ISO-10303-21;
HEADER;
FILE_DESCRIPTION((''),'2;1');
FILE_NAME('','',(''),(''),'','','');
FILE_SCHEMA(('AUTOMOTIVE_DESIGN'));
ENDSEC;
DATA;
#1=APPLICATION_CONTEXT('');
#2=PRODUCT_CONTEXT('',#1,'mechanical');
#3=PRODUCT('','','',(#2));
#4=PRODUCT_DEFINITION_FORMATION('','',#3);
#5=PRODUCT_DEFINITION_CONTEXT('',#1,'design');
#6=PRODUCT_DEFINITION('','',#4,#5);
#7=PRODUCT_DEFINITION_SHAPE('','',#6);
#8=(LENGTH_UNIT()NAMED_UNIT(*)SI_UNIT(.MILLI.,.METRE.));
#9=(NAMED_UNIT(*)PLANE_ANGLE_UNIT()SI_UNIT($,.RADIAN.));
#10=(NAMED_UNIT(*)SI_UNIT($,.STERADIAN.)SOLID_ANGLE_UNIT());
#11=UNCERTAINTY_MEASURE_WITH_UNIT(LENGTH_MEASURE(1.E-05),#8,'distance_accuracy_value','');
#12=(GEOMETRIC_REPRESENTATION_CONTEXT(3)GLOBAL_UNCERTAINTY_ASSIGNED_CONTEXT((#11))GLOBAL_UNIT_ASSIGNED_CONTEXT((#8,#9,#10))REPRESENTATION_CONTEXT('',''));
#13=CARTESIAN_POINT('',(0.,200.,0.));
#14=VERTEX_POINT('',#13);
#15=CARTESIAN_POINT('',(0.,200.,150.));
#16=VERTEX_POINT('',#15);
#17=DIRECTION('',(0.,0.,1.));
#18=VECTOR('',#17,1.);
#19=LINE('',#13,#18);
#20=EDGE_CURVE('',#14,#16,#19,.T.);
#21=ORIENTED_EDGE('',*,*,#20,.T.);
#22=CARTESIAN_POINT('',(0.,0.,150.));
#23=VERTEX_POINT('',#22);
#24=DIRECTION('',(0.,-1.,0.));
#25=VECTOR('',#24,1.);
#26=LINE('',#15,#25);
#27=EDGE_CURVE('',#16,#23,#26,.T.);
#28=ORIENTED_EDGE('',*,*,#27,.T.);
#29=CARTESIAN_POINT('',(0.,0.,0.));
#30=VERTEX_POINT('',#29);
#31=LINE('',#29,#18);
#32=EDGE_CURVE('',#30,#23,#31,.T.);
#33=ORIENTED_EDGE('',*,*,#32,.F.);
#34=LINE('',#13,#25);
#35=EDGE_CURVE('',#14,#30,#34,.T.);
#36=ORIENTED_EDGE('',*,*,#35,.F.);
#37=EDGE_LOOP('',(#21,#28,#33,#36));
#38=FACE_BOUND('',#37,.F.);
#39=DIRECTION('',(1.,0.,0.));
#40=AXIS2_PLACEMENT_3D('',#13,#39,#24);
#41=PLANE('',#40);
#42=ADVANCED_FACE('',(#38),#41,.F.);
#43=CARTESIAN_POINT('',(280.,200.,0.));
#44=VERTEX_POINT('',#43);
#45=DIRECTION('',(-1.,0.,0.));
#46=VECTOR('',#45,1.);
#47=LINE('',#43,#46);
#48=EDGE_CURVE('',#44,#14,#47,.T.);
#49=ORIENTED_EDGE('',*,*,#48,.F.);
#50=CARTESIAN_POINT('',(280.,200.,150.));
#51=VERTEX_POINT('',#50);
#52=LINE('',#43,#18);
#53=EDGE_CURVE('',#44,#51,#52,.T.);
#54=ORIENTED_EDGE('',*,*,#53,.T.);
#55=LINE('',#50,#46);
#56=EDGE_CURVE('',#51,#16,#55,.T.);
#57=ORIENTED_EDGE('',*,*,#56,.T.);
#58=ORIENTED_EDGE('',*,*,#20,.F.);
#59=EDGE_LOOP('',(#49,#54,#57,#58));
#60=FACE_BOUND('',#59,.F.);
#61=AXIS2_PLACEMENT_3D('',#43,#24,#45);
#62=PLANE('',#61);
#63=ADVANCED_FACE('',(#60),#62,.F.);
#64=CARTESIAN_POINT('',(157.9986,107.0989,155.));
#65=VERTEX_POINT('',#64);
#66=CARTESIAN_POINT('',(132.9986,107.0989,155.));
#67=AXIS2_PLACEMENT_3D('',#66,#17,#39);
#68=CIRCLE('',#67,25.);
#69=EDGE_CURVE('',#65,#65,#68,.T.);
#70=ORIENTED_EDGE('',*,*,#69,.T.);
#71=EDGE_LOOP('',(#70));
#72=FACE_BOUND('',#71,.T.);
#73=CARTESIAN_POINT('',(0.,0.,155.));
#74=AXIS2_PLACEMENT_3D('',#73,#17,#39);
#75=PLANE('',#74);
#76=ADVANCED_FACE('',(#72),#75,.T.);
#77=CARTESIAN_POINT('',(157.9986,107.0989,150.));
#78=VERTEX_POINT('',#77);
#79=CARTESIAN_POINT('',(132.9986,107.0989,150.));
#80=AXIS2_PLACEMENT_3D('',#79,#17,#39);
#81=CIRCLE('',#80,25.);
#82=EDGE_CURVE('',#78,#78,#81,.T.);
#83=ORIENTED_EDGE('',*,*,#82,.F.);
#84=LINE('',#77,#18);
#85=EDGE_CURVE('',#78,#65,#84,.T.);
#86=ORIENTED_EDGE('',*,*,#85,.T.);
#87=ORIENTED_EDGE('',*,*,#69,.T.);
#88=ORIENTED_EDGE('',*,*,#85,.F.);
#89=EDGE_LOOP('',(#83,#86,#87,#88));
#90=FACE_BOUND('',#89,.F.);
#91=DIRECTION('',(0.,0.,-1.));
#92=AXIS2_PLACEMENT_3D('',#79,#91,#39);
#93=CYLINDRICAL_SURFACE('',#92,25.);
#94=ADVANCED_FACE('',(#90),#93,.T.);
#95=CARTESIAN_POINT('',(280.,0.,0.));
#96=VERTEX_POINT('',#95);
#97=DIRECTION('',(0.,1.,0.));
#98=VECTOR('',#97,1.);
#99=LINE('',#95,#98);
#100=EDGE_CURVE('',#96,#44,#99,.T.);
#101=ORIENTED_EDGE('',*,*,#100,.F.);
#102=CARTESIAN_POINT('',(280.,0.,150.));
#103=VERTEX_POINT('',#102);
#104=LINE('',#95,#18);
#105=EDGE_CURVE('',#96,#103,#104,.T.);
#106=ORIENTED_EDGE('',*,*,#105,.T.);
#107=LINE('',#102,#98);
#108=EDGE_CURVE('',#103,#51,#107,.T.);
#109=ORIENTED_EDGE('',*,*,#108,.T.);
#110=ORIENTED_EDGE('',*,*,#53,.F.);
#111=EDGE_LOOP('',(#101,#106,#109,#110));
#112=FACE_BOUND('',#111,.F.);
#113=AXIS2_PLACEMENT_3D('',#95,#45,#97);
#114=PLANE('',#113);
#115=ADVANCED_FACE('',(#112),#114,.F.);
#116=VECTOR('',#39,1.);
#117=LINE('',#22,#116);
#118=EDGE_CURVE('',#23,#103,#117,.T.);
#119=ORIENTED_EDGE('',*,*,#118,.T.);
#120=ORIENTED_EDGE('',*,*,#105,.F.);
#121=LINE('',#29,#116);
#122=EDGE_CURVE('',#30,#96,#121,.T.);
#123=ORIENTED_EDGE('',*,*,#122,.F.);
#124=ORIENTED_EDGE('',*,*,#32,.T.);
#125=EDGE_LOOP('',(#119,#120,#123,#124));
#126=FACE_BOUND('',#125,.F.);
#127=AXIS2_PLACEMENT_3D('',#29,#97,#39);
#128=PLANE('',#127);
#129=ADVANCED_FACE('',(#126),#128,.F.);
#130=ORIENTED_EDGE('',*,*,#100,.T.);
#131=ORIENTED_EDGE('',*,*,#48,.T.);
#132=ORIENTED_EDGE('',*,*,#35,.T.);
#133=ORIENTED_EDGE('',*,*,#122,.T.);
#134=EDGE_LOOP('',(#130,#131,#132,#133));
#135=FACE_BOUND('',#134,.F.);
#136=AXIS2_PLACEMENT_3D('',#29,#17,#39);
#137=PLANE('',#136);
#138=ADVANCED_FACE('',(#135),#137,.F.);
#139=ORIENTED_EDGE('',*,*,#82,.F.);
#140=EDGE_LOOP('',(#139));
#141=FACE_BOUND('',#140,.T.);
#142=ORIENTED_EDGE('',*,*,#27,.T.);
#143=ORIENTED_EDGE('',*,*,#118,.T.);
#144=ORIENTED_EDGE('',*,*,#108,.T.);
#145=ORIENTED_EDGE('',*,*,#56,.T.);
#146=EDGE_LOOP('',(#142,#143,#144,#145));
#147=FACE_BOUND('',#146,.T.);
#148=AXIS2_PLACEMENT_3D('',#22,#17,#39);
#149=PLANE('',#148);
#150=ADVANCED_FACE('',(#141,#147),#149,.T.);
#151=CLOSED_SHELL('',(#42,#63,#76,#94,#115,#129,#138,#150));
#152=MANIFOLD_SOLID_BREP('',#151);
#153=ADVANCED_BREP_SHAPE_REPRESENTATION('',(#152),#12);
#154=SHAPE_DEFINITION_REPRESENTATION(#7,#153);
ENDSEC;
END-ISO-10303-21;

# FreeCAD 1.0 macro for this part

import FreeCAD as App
import Part
import Sketcher
from FreeCAD import Vector
Q = App.Units.Quantity

doc = App.newDocument("Part")
body = doc.addObject("PartDesign::Body", "Body")

# Sketch on XY plane
sketch1 = body.newObject("Sketcher::SketchObject", "Sketch")
sketch1.AttachmentSupport = (doc.getObject("XY_Plane"), [""])
sketch1.MapMode = "FlatFace"
sketch1.addGeometry([
    Part.LineSegment(Vector(0, 200, 0), Vector(0, 0, 0)),
    Part.LineSegment(Vector(0, 0, 0), Vector(280, 0, 0)),
    Part.LineSegment(Vector(280, 0, 0), Vector(280, 200, 0)),
    Part.LineSegment(Vector(280, 200, 0), Vector(0, 200, 0)),
], False)
sketch1.addConstraint([
    Sketcher.Constraint("Coincident", 0, 2, 1, 1),
    Sketcher.Constraint("Coincident", 1, 2, 2, 1),
    Sketcher.Constraint("Coincident", 2, 2, 3, 1),
    Sketcher.Constraint("Coincident", 3, 2, 0, 1),
    Sketcher.Constraint("Vertical", 0),
    Sketcher.Constraint("Horizontal", 1),
    Sketcher.Constraint("Vertical", 2),
    Sketcher.Constraint("Horizontal", 3),
    Sketcher.Constraint("Coincident", 0, 2, -1, 1),
    Sketcher.Constraint("DistanceX", 1, 1, 1, 2, Q("280 mm")),
    Sketcher.Constraint("DistanceY", 0, 2, 0, 1, Q("200 mm")),
])
pad1 = body.newObject("PartDesign::Pad", "Pad")
pad1.Profile = sketch1
pad1.Length = 150

# Sketch on XY plane
sketch2 = body.newObject("Sketcher::SketchObject", "Sketch001")
sketch2.AttachmentSupport = (doc.getObject("XY_Plane"), [""])
sketch2.MapMode = "FlatFace"
sketch2.AttachmentOffset = App.Placement(Vector(0, 0, 150), App.Rotation())
sketch2.addGeometry(Part.Circle(Vector(132.9986, 107.0989, 0), Vector(0, 0, 1), 25), False)
sketch2.addConstraint([
    Sketcher.Constraint("Diameter", 0, Q("50 mm")),
    Sketcher.Constraint("DistanceY", -1, 1, 0, 3, Q("107.099 mm")),
    Sketcher.Constraint("DistanceX", -1, 1, 0, 3, Q("132.9986 mm")),
])
pad2 = body.newObject("PartDesign::Pad", "Pad001")
pad2.Profile = sketch2
pad2.Length = 5

doc.recompute()
